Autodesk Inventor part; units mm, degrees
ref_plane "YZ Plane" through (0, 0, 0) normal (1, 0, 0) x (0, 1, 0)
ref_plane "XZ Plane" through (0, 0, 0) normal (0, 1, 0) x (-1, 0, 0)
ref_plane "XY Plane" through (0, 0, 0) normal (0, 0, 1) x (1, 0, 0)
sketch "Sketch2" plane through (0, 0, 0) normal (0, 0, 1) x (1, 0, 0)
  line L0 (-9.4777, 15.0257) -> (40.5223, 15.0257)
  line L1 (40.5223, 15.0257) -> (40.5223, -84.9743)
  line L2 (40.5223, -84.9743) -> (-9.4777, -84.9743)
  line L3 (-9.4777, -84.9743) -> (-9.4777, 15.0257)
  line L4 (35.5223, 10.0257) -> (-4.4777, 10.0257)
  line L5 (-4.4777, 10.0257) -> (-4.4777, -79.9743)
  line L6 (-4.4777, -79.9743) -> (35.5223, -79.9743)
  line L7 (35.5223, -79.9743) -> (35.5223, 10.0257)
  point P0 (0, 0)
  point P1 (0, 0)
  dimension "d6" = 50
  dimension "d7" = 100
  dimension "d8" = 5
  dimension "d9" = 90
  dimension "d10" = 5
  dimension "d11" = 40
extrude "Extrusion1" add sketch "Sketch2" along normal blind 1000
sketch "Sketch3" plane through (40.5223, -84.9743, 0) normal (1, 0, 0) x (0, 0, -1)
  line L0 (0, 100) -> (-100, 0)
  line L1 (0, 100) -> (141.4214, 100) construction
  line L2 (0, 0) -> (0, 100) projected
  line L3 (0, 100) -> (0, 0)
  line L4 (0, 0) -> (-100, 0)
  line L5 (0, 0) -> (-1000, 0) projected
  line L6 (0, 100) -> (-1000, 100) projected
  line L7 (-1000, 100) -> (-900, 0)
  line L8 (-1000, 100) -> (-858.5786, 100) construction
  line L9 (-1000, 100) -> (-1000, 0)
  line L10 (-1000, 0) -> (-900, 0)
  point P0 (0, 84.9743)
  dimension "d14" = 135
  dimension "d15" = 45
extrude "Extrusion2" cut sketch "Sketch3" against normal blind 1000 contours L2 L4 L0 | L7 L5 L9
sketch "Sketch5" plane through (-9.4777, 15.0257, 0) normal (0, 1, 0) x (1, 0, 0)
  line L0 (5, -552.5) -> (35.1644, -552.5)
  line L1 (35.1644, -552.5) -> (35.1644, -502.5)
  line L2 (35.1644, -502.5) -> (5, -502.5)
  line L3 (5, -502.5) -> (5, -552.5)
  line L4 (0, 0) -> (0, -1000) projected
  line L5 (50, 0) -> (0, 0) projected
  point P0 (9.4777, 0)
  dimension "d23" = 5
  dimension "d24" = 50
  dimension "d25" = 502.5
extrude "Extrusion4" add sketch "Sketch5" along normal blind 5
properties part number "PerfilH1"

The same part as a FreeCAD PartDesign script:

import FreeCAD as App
import Part
import Sketcher

V = App.Vector

doc = App.newDocument("Part")
body = doc.addObject("PartDesign::Body", "Body")

sketch1 = body.newObject("Sketcher::SketchObject", "Sketch")
sketch1.AttachmentSupport = (doc.getObject("XY_Plane"), [""])
sketch1.MapMode = "FlatFace"
sketch1.addGeometry(Part.LineSegment(V(41, 15, 0), V(-9, 15, 0)), False)
sketch1.addGeometry(Part.LineSegment(V(-9, 15, 0), V(-9, -85, 0)), False)
sketch1.addGeometry(Part.LineSegment(V(-9, -85, 0), V(41, -85, 0)), False)
sketch1.addGeometry(Part.LineSegment(V(41, -85, 0), V(41, 15, 0)), False)
sketch1.addGeometry(Part.LineSegment(V(-4, 10, 0), V(36, 10, 0)), False)
sketch1.addGeometry(Part.LineSegment(V(36, 10, 0), V(36, -80, 0)), False)
sketch1.addGeometry(Part.LineSegment(V(36, -80, 0), V(-4, -80, 0)), False)
sketch1.addGeometry(Part.LineSegment(V(-4, -80, 0), V(-4, 10, 0)), False)
sketch1.addConstraint(Sketcher.Constraint("Coincident", 0, 2, 1, 1))
sketch1.addConstraint(Sketcher.Constraint("Coincident", 1, 2, 2, 1))
sketch1.addConstraint(Sketcher.Constraint("Coincident", 2, 2, 3, 1))
sketch1.addConstraint(Sketcher.Constraint("Coincident", 3, 2, 0, 1))
sketch1.addConstraint(Sketcher.Constraint("Coincident", 4, 2, 5, 1))
sketch1.addConstraint(Sketcher.Constraint("Coincident", 5, 2, 6, 1))
sketch1.addConstraint(Sketcher.Constraint("Coincident", 6, 2, 7, 1))
sketch1.addConstraint(Sketcher.Constraint("Coincident", 7, 2, 4, 1))
sketch1.addConstraint(Sketcher.Constraint("Horizontal", 0))
sketch1.addConstraint(Sketcher.Constraint("Vertical", 1))
sketch1.addConstraint(Sketcher.Constraint("Horizontal", 2))
sketch1.addConstraint(Sketcher.Constraint("Vertical", 3))
sketch1.addConstraint(Sketcher.Constraint("Horizontal", 4))
sketch1.addConstraint(Sketcher.Constraint("Vertical", 5))
sketch1.addConstraint(Sketcher.Constraint("Horizontal", 6))
sketch1.addConstraint(Sketcher.Constraint("Vertical", 7))
sketch1.addConstraint(Sketcher.Constraint("DistanceX", 0, 2, 0, 1, 50.0))
sketch1.addConstraint(Sketcher.Constraint("DistanceX", 4, 1, 4, 2, 40.0))
sketch1.addConstraint(Sketcher.Constraint("DistanceY", 1, 2, 1, 1, 100.0))
sketch1.addConstraint(Sketcher.Constraint("DistanceY", 5, 2, 5, 1, 90.0))
sketch1.addConstraint(Sketcher.Constraint("DistanceX", 4, 2, 3, 2, 5.0))
sketch1.addConstraint(Sketcher.Constraint("DistanceY", 4, 2, 3, 2, 5.0))
sketch1.addConstraint(Sketcher.Constraint("DistanceX", 0, 2, -1, 1, 9.4777))
sketch1.addConstraint(Sketcher.Constraint("DistanceY", -1, 1, 0, 2, 15.0257))
pad1 = body.newObject("PartDesign::Pad", "Pad")
pad1.Profile = sketch1
pad1.Length = 1000

sketch2 = body.newObject("Sketcher::SketchObject", "Sketch001")
sketch2.AttachmentSupport = (doc.getObject("YZ_Plane"), [""])
sketch2.MapMode = "FlatFace"
sketch2.AttachmentOffset = App.Placement(V(0, 0, 40.5223), App.Rotation())
sketch2.addGeometry(Part.LineSegment(V(-85, 0, 0), V(15, 0, 0)), False)
sketch2.addGeometry(Part.LineSegment(V(15, 0, 0), V(-85, 100, 0)), False)
sketch2.addGeometry(Part.LineSegment(V(-85, 100, 0), V(-85, 0, 0)), False)
sketch2.addGeometry(Part.LineSegment(V(-85, 900, 0), V(15, 1000, 0)), False)
sketch2.addGeometry(Part.LineSegment(V(15, 1000, 0), V(-85, 1000, 0)), False)
sketch2.addGeometry(Part.LineSegment(V(-85, 1000, 0), V(-85, 900, 0)), False)
sketch2.addConstraint(Sketcher.Constraint("Coincident", 0, 2, 1, 1))
sketch2.addConstraint(Sketcher.Constraint("Coincident", 1, 2, 2, 1))
sketch2.addConstraint(Sketcher.Constraint("Coincident", 2, 2, 0, 1))
sketch2.addConstraint(Sketcher.Constraint("Coincident", 3, 2, 4, 1))
sketch2.addConstraint(Sketcher.Constraint("Coincident", 4, 2, 5, 1))
sketch2.addConstraint(Sketcher.Constraint("Coincident", 5, 2, 3, 1))
sketch2.addConstraint(Sketcher.Constraint("Horizontal", 0))
sketch2.addConstraint(Sketcher.Constraint("Vertical", 2))
sketch2.addConstraint(Sketcher.Constraint("Horizontal", 4))
sketch2.addConstraint(Sketcher.Constraint("Vertical", 5))
sketch2.addConstraint(Sketcher.Constraint("PointOnObject", 0, 2, -1))
sketch2.addConstraint(Sketcher.Constraint("Perpendicular", 1, 3))
sketch2.addConstraint(Sketcher.Constraint("Vertical", 0, 2, 3, 2))
sketch2.addConstraint(Sketcher.Constraint("Vertical", 2, 2, 4, 2))
sketch2.addConstraint(Sketcher.Constraint("Equal", 4, 2))
sketch2.addConstraint(Sketcher.Constraint("DistanceX", 0, 1, 0, 2, 100.0))
sketch2.addConstraint(Sketcher.Constraint("DistanceY", -1, 1, 3, 2, 1000.0))
sketch2.addConstraint(Sketcher.Constraint("DistanceX", -1, 1, 0, 2, 15.0257))
pocket1 = body.newObject("PartDesign::Pocket", "Pocket")
pocket1.Profile = sketch2
pocket1.Length = 1000

sketch3 = body.newObject("Sketcher::SketchObject", "Sketch002")
sketch3.AttachmentSupport = (doc.getObject("XZ_Plane"), [""])
sketch3.MapMode = "FlatFace"
sketch3.AttachmentOffset = App.Placement(V(0, 0, -15.0257), App.Rotation())
sketch3.addGeometry(Part.LineSegment(V(-4, 502, 0), V(-4, 552, 0)), False)
sketch3.addGeometry(Part.LineSegment(V(-4, 552, 0), V(26, 552, 0)), False)
sketch3.addGeometry(Part.LineSegment(V(26, 552, 0), V(26, 502, 0)), False)
sketch3.addGeometry(Part.LineSegment(V(26, 502, 0), V(-4, 502, 0)), False)
sketch3.addConstraint(Sketcher.Constraint("Coincident", 0, 2, 1, 1))
sketch3.addConstraint(Sketcher.Constraint("Coincident", 1, 2, 2, 1))
sketch3.addConstraint(Sketcher.Constraint("Coincident", 2, 2, 3, 1))
sketch3.addConstraint(Sketcher.Constraint("Coincident", 3, 2, 0, 1))
sketch3.addConstraint(Sketcher.Constraint("Vertical", 0))
sketch3.addConstraint(Sketcher.Constraint("Horizontal", 1))
sketch3.addConstraint(Sketcher.Constraint("Vertical", 2))
sketch3.addConstraint(Sketcher.Constraint("Horizontal", 3))
sketch3.addConstraint(Sketcher.Constraint("DistanceY", 0, 1, 0, 2, 50.0))
sketch3.addConstraint(Sketcher.Constraint("DistanceY", -1, 1, 2, 2, 502.5))
sketch3.addConstraint(Sketcher.Constraint("DistanceX", 1, 1, 1, 2, 30.1644))
sketch3.addConstraint(Sketcher.Constraint("DistanceX", 0, 2, -1, 1, 4.4777))
pad2 = body.newObject("PartDesign::Pad", "Pad001")
pad2.Profile = sketch3
pad2.Length = 5
pad2.Reversed = True

doc.recompute()
